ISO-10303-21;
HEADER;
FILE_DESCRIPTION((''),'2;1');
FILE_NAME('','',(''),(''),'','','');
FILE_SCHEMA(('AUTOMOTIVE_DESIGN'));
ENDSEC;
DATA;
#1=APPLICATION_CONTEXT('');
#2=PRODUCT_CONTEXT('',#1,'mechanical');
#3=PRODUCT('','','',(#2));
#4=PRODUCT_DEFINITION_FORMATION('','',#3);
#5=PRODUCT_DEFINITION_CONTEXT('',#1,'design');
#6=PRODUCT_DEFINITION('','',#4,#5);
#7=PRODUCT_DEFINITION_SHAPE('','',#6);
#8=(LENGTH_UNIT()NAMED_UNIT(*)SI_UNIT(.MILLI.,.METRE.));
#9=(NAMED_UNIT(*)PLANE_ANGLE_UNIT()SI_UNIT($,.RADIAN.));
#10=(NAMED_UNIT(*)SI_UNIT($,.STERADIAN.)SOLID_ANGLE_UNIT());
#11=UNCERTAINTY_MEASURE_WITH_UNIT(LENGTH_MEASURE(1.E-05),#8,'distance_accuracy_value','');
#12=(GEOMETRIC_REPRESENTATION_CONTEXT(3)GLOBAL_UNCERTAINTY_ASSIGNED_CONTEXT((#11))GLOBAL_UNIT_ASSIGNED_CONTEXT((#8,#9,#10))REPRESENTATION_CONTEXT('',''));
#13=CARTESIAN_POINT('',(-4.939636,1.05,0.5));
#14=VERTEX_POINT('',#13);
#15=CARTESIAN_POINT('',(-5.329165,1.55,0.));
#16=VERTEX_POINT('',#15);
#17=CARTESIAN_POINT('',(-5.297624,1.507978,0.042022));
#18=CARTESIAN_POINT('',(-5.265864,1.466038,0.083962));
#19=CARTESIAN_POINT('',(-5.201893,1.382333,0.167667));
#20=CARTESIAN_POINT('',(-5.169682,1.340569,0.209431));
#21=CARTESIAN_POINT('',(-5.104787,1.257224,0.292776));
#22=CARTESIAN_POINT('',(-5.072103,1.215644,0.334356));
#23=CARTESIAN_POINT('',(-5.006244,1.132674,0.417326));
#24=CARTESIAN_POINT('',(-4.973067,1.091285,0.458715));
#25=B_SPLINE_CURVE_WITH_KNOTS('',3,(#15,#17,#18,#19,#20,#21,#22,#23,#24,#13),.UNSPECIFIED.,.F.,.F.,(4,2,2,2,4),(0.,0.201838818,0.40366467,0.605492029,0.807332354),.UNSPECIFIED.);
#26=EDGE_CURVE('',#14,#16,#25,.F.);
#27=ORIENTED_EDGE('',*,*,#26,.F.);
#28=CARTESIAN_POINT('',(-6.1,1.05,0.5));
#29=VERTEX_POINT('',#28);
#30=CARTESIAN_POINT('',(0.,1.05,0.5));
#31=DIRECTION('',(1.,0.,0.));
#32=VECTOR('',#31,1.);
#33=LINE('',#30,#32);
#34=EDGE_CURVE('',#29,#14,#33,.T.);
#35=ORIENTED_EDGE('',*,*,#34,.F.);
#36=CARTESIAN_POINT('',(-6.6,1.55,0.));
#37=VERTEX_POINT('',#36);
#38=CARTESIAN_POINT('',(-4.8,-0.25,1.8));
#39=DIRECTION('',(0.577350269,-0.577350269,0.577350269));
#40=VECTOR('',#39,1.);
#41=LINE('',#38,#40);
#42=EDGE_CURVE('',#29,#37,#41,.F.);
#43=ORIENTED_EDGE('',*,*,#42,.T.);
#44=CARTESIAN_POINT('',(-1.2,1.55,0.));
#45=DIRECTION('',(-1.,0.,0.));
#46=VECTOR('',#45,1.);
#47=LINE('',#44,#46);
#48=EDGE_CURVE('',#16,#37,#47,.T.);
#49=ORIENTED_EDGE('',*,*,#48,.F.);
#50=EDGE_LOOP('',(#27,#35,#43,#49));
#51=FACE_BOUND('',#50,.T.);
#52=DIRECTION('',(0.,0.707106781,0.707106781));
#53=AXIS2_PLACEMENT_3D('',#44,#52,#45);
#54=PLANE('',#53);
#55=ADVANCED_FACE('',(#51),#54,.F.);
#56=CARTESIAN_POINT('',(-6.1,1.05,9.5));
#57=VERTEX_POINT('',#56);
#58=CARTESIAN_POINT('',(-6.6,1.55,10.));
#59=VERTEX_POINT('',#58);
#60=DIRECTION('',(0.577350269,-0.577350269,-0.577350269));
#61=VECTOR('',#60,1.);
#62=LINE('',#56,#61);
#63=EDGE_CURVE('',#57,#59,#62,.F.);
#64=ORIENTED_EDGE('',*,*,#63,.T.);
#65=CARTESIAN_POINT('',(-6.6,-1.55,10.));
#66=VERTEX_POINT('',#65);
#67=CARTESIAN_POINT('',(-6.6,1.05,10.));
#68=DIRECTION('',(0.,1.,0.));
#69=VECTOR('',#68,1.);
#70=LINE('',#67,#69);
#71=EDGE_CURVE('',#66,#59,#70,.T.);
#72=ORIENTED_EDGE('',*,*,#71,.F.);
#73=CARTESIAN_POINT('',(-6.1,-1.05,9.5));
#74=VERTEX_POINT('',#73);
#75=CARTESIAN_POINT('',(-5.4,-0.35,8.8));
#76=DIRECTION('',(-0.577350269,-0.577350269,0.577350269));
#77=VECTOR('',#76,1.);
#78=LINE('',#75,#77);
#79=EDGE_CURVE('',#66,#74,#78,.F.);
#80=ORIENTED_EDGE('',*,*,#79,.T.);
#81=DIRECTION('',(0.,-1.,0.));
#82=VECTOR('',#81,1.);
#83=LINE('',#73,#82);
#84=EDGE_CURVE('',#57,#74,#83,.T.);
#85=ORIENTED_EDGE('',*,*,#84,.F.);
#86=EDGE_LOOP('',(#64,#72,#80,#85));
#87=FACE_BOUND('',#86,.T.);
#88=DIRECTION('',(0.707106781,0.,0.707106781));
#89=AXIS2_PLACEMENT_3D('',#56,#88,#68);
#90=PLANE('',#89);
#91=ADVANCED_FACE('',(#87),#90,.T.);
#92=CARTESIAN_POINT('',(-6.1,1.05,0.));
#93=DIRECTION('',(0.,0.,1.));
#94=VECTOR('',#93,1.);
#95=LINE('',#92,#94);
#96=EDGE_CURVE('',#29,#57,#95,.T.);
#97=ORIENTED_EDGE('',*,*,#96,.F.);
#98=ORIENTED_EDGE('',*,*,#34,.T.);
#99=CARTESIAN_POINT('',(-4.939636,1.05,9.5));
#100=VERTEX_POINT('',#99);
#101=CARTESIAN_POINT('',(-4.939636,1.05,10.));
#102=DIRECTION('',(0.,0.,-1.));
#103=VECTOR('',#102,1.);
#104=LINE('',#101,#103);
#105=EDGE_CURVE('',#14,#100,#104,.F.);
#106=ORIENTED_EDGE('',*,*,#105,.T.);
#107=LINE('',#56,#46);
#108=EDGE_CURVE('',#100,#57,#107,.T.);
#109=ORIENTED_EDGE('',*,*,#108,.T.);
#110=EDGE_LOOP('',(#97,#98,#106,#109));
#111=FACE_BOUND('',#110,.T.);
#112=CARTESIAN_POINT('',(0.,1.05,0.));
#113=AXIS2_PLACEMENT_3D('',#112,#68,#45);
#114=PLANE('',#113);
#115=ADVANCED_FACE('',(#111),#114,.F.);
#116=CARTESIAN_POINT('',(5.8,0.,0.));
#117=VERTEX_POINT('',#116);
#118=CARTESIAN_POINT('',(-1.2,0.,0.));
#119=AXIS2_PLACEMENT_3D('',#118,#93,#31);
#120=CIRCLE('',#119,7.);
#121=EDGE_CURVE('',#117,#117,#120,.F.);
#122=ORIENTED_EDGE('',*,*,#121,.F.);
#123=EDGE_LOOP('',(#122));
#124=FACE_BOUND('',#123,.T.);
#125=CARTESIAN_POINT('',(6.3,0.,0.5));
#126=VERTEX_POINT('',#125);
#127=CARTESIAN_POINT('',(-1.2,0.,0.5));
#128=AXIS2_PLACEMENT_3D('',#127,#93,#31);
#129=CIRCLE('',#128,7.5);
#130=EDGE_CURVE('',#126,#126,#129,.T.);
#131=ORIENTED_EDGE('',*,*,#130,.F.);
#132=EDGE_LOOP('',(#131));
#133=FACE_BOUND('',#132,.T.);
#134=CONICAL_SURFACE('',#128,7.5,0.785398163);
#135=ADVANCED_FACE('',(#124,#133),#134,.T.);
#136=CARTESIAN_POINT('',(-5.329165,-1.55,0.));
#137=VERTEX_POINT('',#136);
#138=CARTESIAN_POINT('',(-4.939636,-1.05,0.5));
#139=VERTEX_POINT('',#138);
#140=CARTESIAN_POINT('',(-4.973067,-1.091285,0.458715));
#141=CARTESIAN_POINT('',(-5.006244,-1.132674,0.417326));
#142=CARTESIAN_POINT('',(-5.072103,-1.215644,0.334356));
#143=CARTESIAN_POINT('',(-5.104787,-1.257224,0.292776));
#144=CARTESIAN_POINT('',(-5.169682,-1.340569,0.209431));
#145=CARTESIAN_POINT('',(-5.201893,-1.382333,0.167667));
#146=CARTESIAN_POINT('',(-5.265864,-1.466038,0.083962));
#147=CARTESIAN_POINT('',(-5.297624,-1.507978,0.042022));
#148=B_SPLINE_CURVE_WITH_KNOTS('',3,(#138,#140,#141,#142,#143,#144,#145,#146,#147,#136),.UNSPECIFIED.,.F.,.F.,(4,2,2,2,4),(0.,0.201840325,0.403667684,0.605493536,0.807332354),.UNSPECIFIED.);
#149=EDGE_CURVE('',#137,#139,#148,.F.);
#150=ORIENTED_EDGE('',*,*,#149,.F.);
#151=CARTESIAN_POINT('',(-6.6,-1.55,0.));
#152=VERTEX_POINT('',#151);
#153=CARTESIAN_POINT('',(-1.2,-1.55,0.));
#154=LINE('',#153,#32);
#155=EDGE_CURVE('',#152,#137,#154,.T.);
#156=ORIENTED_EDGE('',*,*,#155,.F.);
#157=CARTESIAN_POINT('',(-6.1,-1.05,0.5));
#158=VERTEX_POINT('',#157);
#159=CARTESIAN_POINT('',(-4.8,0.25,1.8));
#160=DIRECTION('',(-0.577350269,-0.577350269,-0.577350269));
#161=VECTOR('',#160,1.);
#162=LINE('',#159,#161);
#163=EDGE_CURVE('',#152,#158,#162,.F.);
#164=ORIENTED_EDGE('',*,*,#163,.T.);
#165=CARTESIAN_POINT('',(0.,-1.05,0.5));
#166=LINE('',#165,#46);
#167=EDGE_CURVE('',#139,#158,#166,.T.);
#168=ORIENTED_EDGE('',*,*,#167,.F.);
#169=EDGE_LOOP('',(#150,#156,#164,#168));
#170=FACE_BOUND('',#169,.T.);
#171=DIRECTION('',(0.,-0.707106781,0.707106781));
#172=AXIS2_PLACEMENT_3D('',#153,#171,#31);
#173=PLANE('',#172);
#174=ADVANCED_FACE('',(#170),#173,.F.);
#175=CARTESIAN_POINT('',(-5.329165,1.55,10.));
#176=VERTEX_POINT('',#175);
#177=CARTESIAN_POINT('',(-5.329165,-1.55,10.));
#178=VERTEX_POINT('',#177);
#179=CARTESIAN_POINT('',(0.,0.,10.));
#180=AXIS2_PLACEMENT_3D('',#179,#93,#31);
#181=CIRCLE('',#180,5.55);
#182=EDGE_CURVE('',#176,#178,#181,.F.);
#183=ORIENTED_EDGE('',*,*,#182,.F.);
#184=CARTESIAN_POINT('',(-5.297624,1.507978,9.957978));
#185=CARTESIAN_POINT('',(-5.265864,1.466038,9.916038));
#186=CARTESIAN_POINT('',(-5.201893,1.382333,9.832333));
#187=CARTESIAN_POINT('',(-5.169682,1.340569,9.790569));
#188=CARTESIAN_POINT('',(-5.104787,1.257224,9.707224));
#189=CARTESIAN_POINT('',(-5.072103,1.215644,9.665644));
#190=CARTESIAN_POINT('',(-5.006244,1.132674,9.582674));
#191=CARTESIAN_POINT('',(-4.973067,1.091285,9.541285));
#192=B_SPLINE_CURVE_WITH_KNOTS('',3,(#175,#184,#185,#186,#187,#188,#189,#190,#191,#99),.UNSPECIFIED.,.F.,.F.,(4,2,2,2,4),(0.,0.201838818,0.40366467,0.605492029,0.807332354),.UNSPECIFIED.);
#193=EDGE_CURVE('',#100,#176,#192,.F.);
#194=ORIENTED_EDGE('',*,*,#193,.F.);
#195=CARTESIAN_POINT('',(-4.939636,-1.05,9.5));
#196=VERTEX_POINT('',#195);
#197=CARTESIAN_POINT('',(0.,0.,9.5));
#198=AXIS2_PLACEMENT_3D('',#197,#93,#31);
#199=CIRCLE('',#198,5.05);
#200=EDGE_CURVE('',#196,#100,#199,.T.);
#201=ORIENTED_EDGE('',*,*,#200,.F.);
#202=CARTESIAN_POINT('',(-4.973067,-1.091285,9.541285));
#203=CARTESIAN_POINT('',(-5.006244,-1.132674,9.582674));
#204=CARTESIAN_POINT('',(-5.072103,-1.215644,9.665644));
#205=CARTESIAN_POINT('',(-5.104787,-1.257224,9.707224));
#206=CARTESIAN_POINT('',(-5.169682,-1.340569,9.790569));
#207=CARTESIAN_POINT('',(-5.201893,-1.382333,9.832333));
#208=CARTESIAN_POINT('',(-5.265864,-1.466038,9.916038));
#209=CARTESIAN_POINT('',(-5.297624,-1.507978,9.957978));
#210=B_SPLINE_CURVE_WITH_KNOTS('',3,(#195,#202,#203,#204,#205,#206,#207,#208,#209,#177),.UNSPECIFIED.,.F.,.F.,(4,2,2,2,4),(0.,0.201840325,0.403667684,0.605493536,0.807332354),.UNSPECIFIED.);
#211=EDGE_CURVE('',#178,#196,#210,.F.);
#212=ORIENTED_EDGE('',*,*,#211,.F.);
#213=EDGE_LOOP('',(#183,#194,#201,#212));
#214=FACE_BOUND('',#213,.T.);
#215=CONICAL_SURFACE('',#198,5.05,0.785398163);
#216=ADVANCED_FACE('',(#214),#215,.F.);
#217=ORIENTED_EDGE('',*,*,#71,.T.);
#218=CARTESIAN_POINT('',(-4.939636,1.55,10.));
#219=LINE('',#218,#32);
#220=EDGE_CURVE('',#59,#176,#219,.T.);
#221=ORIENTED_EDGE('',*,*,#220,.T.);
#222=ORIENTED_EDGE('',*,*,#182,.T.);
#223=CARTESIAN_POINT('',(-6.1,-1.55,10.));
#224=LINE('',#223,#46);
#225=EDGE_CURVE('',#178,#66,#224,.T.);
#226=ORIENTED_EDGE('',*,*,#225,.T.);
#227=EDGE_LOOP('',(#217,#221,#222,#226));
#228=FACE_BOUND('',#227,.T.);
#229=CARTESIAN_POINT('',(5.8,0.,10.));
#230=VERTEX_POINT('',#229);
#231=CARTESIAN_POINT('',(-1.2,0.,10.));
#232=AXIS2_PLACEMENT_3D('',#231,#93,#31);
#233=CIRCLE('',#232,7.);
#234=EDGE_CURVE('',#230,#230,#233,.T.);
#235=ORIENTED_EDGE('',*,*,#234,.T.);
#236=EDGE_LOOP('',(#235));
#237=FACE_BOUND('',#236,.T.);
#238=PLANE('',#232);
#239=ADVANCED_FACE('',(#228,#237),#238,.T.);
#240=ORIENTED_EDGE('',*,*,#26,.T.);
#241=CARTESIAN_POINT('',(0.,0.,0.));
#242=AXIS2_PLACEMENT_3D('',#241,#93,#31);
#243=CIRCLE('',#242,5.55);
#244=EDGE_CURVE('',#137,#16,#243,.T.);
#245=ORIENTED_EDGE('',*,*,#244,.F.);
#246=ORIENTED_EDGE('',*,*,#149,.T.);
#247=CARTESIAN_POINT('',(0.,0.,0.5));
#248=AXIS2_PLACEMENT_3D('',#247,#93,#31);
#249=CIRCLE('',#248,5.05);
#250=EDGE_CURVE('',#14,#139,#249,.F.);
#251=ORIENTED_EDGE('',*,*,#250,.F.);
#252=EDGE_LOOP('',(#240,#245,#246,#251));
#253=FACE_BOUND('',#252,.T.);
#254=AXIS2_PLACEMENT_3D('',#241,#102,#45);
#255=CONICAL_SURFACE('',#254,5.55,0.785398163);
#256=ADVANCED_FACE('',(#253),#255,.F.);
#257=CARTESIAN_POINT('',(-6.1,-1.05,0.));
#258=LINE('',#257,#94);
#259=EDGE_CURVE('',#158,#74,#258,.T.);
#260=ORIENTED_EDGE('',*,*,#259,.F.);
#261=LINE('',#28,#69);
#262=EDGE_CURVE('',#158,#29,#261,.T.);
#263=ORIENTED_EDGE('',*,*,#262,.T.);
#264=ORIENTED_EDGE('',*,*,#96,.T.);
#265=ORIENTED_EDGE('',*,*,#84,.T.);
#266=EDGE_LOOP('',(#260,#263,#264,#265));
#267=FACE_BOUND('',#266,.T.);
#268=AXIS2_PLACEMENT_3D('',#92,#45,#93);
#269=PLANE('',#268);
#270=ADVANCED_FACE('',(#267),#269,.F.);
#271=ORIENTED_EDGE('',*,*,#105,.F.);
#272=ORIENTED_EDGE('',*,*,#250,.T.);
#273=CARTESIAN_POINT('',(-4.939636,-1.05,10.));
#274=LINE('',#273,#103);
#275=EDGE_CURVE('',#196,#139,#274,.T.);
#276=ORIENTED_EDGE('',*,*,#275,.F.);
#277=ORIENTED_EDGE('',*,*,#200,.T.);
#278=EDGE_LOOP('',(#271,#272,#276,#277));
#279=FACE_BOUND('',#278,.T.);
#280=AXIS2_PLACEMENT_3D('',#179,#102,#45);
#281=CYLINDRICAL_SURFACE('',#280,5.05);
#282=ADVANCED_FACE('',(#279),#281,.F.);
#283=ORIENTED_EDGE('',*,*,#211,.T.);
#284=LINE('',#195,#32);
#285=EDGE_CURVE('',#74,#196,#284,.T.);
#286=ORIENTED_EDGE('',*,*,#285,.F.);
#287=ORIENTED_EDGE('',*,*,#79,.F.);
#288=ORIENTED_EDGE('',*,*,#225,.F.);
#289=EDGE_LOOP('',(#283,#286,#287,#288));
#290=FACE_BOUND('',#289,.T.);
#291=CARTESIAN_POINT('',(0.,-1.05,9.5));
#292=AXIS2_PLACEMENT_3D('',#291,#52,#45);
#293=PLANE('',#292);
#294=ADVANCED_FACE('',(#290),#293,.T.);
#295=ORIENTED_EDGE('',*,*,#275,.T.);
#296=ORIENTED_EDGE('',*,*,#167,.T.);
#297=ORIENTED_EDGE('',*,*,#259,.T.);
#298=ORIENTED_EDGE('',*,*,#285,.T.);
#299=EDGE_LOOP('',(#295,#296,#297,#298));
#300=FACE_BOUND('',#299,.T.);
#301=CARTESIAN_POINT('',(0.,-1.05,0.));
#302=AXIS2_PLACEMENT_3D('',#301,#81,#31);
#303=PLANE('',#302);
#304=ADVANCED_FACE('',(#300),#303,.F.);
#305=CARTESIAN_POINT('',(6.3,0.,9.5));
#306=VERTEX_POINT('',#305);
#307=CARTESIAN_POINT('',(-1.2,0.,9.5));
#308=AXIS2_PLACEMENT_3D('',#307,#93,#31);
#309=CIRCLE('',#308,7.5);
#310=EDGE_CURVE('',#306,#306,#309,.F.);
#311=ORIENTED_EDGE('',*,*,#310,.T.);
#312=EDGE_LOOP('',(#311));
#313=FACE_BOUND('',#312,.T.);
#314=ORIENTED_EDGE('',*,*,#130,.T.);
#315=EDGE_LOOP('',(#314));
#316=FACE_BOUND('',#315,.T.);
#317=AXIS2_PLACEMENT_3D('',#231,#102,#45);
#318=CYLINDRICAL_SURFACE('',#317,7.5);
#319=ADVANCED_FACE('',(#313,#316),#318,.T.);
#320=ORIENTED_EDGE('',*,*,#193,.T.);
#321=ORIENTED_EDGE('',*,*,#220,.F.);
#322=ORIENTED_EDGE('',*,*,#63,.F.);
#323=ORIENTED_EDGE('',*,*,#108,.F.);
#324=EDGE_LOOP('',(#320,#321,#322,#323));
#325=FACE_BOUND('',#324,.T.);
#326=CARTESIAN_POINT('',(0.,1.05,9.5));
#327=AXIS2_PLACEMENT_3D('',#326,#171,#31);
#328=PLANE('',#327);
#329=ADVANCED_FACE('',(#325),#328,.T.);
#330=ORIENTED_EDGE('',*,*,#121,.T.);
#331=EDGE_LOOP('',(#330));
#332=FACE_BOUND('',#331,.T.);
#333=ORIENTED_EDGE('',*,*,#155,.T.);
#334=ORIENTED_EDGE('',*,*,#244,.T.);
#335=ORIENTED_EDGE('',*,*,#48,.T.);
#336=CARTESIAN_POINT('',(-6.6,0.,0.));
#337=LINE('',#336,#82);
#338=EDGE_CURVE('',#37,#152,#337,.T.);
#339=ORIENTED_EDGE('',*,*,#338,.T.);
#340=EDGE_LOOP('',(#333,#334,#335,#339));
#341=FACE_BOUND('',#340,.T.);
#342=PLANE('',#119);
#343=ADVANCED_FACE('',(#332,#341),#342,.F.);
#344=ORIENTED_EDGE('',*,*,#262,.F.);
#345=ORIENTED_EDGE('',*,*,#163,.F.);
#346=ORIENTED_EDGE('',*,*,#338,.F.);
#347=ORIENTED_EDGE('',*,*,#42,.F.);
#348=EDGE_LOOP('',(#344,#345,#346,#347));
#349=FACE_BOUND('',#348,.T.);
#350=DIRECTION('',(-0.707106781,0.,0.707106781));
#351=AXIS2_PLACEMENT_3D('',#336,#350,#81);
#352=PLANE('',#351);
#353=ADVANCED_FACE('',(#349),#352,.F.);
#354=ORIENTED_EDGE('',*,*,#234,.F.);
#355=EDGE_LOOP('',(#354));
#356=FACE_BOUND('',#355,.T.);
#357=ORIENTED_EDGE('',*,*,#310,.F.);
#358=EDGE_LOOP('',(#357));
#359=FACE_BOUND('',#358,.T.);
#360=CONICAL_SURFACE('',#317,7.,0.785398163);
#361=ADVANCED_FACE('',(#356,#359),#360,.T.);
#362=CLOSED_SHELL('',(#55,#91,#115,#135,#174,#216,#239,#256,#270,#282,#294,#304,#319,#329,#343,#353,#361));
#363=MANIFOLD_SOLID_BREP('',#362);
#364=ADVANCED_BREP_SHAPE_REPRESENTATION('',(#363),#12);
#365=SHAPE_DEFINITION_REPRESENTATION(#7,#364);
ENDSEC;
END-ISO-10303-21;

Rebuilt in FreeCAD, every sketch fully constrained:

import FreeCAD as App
import Part
import Sketcher
Q = App.Units.Quantity


def edges_at(feature, points):
    """Names of the edges that pass closest to the given points."""
    edges = feature.Shape.Edges
    near = lambda p: min(range(len(edges)), key=lambda i: edges[i].distToShape(Part.Vertex(*p))[0])
    return sorted({f"Edge{near(p) + 1}" for p in points})


def add_polygon(sketch, points):
    """Adds a closed chain of lines whose ends are joined by coincident constraints."""
    first, n = sketch.GeometryCount, len(points)
    for a, b in zip(points, points[1:] + points[:1]):
        sketch.addGeometry(Part.LineSegment(App.Vector(*a, 0), App.Vector(*b, 0)), False)
    for i in range(n):
        sketch.addConstraint(Sketcher.Constraint("Coincident", first + i, 2, first + (i + 1) % n, 1))

doc = App.newDocument("Part")
params = doc.addObject("Spreadsheet::Sheet", "Params")
for row, (alias, value) in enumerate([
    ("sketch1_diameter", "15 mm"),
    ("sketch1_diameter2", "10.1 mm"),
    ("pad1_length", "10 mm"),
    ("sketch2_width", "6.1 mm"),
    ("sketch2_height", "2.1 mm"),
    ("chamfer_size", "0.5 mm"),
    ("chamfer2_size", "0.5 mm"),
    ("chamfer3_size", "0.5 mm"),
], start=1):
    params.set(f"A{row}", alias)
    params.set(f"B{row}", "=" + value)
    params.setAlias(f"B{row}", alias)

body = doc.addObject("PartDesign::Body", "Body")

# Sketch on XY plane
sketch1 = body.newObject("Sketcher::SketchObject", "Sketch")
sketch1.AttachmentSupport = (doc.getObject("XY_Plane"), [""])
sketch1.MapMode = "FlatFace"
sketch1.addGeometry([
    Part.Circle(App.Vector(-1.2, 0, 0), App.Vector(0, 0, 1), 7.5),
    Part.Circle(App.Vector(0, 0, 0), App.Vector(0, 0, 1), 5.05),
], False)
sketch1.addConstraint([
    Sketcher.Constraint("Coincident", 1, 3, -1, 1),
    Sketcher.Constraint("PointOnObject", 0, 3, -1),
    Sketcher.Constraint("Diameter", 0, Q("15 mm")),
    Sketcher.Constraint("Diameter", 1, Q("10.1 mm")),
    Sketcher.Constraint("DistanceX", 0, 3, -1, 1, Q("1.2 mm")),
])
sketch1.setExpression("Constraints[2]", "Params.sketch1_diameter")
sketch1.setExpression("Constraints[3]", "Params.sketch1_diameter2")
pad1 = body.newObject("PartDesign::Pad", "Pad")
pad1.Profile = sketch1
pad1.setExpression("Length", "Params.pad1_length")

# Sketch on XY plane
sketch2 = body.newObject("Sketcher::SketchObject", "Sketch001")
sketch2.AttachmentSupport = (doc.getObject("XY_Plane"), [""])
sketch2.MapMode = "FlatFace"
sketch2.AttachmentOffset = App.Placement(App.Vector(0, 0, 10), App.Rotation())
add_polygon(sketch2, [(-6.1, 1.05), (-6.1, -1.05), (0, -1.05), (0, 1.05)])  # lines 0-3
sketch2.addConstraint([
    Sketcher.Constraint("Vertical", 0),
    Sketcher.Constraint("Horizontal", 1),
    Sketcher.Constraint("Vertical", 2),
    Sketcher.Constraint("Horizontal", 3),
    Sketcher.Constraint("Symmetric", 1, 2, 2, 2, -1, 1),
    Sketcher.Constraint("DistanceX", 1, 1, 1, 2, Q("6.1 mm")),
    Sketcher.Constraint("DistanceY", 0, 2, 0, 1, Q("2.1 mm")),
])
sketch2.setExpression("Constraints[9]", "Params.sketch2_width")
sketch2.setExpression("Constraints[10]", "Params.sketch2_height")
pocket1 = body.newObject("PartDesign::Pocket", "Pocket")
pocket1.Profile = sketch2
pocket1.Type = "ThroughAll"
doc.recompute()

chamfer = body.newObject("PartDesign::Chamfer", "Chamfer")
chamfer.Base = (pocket1, edges_at(pocket1, [
    (5.05, 0, 10),
    (-5.52, -1.05, 10),
    (-5.52, 1.05, 10),
    (-6.1, 0, 10),
]))
chamfer.setExpression("Size", "Params.chamfer_size")
doc.recompute()

chamfer2 = body.newObject("PartDesign::Chamfer", "Chamfer001")
chamfer2.Base = (chamfer, edges_at(chamfer, [
    (5.05, 0, 0),
    (-5.52, -1.05, 0),
    (-6.1, 0, 0),
    (-5.52, 1.05, 0),
]))
chamfer2.setExpression("Size", "Params.chamfer2_size")
doc.recompute()

chamfer3 = body.newObject("PartDesign::Chamfer", "Chamfer002")
chamfer3.Base = (chamfer2, edges_at(chamfer2, [(-8.7, 0, 0), (-8.7, 0, 10)]))
chamfer3.setExpression("Size", "Params.chamfer3_size")

doc.recompute()
